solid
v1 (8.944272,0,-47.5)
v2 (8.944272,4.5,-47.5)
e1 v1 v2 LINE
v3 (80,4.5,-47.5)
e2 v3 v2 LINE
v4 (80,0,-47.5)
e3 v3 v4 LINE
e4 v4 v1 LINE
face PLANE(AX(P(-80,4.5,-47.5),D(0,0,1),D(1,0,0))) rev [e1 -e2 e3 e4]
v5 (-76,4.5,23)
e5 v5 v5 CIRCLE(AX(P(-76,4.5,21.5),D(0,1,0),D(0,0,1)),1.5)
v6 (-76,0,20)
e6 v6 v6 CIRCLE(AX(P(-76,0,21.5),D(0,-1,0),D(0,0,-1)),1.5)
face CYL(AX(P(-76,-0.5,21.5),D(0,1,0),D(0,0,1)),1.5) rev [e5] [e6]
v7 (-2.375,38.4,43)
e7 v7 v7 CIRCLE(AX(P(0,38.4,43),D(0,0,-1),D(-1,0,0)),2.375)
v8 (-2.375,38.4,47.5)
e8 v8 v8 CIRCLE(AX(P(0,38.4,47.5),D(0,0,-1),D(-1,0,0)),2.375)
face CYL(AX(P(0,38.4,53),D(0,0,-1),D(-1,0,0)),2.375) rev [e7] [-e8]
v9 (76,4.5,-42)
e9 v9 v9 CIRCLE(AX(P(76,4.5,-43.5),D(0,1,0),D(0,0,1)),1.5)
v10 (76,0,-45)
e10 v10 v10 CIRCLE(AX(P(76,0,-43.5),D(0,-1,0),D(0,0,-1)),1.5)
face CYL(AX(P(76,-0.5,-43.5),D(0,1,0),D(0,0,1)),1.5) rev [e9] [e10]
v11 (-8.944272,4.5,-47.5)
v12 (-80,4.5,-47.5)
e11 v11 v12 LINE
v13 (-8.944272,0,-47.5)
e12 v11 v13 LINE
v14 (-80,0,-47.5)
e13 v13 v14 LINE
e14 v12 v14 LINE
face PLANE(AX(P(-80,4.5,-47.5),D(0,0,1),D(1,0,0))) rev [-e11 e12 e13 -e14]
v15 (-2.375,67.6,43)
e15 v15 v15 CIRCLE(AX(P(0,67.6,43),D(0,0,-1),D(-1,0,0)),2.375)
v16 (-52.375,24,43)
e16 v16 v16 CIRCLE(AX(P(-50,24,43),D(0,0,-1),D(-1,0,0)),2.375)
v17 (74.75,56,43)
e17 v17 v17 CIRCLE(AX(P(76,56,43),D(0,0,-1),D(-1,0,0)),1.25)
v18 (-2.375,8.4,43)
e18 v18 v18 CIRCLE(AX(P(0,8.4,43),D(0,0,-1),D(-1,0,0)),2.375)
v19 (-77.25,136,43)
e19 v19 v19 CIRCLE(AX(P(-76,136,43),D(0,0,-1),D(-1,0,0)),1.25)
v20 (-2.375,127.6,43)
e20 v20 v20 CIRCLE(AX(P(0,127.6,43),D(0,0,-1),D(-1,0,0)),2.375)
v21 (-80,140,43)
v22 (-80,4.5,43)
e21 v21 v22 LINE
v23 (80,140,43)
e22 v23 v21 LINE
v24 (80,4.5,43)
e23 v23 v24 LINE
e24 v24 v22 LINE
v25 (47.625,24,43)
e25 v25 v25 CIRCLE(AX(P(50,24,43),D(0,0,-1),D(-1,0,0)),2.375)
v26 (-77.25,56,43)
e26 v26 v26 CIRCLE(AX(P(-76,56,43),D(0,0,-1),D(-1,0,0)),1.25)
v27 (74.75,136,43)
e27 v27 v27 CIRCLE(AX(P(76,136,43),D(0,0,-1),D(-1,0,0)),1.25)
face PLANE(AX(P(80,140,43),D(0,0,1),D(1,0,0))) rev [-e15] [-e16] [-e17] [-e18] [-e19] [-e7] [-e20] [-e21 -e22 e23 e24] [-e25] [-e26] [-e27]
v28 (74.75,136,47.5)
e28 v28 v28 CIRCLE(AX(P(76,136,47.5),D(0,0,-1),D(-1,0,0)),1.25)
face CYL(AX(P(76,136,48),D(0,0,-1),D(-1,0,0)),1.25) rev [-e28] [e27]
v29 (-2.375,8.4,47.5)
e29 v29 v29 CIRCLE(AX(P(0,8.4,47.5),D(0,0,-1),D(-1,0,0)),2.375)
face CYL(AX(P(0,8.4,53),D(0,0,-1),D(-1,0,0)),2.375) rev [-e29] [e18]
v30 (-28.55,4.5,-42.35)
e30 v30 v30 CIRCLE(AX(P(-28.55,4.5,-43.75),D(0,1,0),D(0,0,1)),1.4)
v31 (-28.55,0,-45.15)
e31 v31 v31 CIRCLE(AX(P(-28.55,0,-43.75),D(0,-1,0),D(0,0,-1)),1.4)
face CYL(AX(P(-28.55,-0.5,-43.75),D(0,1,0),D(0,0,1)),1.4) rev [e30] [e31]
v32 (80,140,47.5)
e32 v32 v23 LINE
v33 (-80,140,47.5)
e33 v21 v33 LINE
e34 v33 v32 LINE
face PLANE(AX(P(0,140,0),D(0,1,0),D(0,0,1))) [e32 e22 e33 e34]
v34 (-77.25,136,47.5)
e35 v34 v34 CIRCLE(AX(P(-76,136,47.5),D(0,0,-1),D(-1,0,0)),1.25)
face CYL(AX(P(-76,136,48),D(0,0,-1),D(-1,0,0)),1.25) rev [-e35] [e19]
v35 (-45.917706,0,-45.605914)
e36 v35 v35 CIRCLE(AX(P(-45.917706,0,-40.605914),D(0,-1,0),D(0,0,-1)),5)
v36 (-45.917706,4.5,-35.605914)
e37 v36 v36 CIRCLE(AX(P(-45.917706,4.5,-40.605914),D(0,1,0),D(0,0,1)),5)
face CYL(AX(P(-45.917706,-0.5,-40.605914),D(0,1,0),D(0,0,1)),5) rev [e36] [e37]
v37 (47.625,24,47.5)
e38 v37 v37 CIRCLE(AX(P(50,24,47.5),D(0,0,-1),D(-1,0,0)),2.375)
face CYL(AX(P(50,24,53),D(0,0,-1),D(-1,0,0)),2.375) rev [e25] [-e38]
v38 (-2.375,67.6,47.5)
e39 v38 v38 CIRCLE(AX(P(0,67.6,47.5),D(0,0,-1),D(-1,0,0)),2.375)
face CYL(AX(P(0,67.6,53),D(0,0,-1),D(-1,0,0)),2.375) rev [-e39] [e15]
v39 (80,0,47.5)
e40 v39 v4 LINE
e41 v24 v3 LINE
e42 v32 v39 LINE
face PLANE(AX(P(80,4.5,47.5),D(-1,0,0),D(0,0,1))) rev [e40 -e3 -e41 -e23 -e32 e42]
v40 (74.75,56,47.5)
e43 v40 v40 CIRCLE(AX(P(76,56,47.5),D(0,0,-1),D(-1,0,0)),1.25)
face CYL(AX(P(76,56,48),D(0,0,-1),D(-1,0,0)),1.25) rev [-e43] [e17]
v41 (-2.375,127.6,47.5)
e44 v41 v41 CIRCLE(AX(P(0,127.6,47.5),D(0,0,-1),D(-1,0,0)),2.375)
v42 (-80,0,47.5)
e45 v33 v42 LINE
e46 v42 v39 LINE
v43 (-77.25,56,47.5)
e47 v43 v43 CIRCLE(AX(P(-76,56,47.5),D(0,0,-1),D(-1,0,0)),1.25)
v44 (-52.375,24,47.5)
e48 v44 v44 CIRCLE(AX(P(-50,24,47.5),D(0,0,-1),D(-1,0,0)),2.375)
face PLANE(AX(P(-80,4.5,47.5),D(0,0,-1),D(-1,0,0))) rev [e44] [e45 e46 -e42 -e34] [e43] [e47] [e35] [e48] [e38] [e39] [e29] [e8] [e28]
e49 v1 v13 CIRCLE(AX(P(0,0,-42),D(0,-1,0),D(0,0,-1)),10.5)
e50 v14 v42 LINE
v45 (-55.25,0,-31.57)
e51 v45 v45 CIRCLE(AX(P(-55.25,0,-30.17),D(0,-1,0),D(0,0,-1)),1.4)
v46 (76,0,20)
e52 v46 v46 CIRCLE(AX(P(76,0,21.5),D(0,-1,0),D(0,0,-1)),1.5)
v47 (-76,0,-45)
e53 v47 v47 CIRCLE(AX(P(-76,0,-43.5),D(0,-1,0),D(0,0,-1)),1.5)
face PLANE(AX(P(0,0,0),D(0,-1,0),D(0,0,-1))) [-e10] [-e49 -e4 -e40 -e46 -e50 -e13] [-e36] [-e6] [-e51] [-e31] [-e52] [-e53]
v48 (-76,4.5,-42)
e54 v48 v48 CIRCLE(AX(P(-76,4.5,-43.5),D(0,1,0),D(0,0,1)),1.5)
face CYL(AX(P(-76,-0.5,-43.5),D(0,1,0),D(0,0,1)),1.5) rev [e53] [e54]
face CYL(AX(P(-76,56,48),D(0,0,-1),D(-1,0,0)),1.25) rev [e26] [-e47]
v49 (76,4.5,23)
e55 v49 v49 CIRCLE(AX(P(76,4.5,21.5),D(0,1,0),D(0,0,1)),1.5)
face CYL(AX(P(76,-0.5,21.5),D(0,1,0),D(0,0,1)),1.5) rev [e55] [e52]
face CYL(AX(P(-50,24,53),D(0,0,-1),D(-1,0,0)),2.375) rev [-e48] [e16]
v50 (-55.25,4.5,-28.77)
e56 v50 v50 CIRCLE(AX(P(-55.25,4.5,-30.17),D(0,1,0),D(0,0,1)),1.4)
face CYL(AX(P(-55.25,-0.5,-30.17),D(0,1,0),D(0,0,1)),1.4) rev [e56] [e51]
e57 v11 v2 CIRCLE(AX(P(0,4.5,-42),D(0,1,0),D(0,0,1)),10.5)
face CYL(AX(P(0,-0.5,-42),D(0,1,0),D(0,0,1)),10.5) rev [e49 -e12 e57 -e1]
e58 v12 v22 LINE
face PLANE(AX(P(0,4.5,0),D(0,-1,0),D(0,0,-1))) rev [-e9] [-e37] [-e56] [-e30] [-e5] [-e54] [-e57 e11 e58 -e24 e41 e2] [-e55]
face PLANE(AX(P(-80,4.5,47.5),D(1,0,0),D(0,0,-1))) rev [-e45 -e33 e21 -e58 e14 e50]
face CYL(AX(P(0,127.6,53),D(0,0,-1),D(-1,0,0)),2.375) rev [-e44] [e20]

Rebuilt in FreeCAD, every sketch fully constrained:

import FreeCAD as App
import Part
import Sketcher
from FreeCAD import Vector


def add_polygon(sketch, points):
    """Adds a closed chain of lines whose ends are joined by coincident constraints."""
    first, n = sketch.GeometryCount, len(points)
    for a, b in zip(points, points[1:] + points[:1]):
        sketch.addGeometry(Part.LineSegment(App.Vector(*a, 0), App.Vector(*b, 0)), False)
    for i in range(n):
        sketch.addConstraint(Sketcher.Constraint("Coincident", first + i, 2, first + (i + 1) % n, 1))

doc = App.newDocument("Part")
body = doc.addObject("PartDesign::Body", "Body")

# Sketch on XZ plane
sketch1 = doc.addObject("Sketcher::SketchObject", "Sketch")
body.addObject(sketch1)
sketch1.AttachmentSupport = (doc.XZ_Plane, [""])
sketch1.MapMode = "FlatFace"
add_polygon(sketch1, [(-80, -48), (-80, 48), (80, 48), (80, -48)])  # lines 0-3
sketch1.addConstraint(Sketcher.Constraint("Vertical", 0))
sketch1.addConstraint(Sketcher.Constraint("Horizontal", 1))
sketch1.addConstraint(Sketcher.Constraint("Vertical", 2))
sketch1.addConstraint(Sketcher.Constraint("Horizontal", 3))
sketch1.addConstraint(Sketcher.Constraint("Symmetric", 0, 2, 2, 2, -1, 1))
sketch1.addConstraint(Sketcher.Constraint("DistanceX", 1, 1, 1, 2, 160.0))
sketch1.addConstraint(Sketcher.Constraint("DistanceY", 0, 1, 0, 2, 95.0))
pad1 = doc.addObject("PartDesign::Pad", "Pad")
body.addObject(pad1)
pad1.Profile = sketch1
pad1.Length = 4.5
pad1.Reversed = True

# Sketch on XZ plane
sketch2 = doc.addObject("Sketcher::SketchObject", "Sketch001")
body.addObject(sketch2)
sketch2.AttachmentSupport = (doc.XZ_Plane, [""])
sketch2.MapMode = "FlatFace"
sketch2.AttachmentOffset = App.Placement(Vector(0, 0, -4.5), App.Rotation())
sketch2.addGeometry(Part.Circle(Vector(76, 21.5, 0), Vector(0, 0, 1), 1.5), False)
sketch2.addGeometry(Part.Circle(Vector(-76, 21.5, 0), Vector(0, 0, 1), 1.5), False)
sketch2.addGeometry(Part.Circle(Vector(-76, -43.5, 0), Vector(0, 0, 1), 1.5), False)
sketch2.addGeometry(Part.Circle(Vector(76, -43.5, 0), Vector(0, 0, 1), 1.5), False)
sketch2.addConstraint(Sketcher.Constraint("Equal", 0, 1))
sketch2.addConstraint(Sketcher.Constraint("Equal", 1, 2))
sketch2.addConstraint(Sketcher.Constraint("Equal", 2, 3))
sketch2.addConstraint(Sketcher.Constraint("Symmetric", 0, 3, 1, 3, -2))
sketch2.addConstraint(Sketcher.Constraint("Symmetric", 2, 3, 3, 3, -2))
sketch2.addConstraint(Sketcher.Constraint("Vertical", 1, 3, 2, 3))
sketch2.addConstraint(Sketcher.Constraint("Diameter", 0, 3.0))
sketch2.addConstraint(Sketcher.Constraint("DistanceX", -1, 1, 0, 3, 76.0))
sketch2.addConstraint(Sketcher.Constraint("DistanceY", 2, 3, 1, 3, 65.0))
sketch2.addConstraint(Sketcher.Constraint("DistanceY", -1, 1, 0, 3, 21.5))
pocket1 = doc.addObject("PartDesign::Pocket", "Pocket")
body.addObject(pocket1)
pocket1.Profile = sketch2
pocket1.Length = 5
pocket1.Reversed = True

# Sketch on XZ plane
sketch3 = doc.addObject("Sketcher::SketchObject", "Sketch002")
body.addObject(sketch3)
sketch3.AttachmentSupport = (doc.XZ_Plane, [""])
sketch3.MapMode = "FlatFace"
sketch3.AttachmentOffset = App.Placement(Vector(0, 0, -4.5), App.Rotation())
add_polygon(sketch3, [(-80, 43), (-80, 47.5), (80, 47.5), (80, 43)])  # lines 0-3
sketch3.addConstraint(Sketcher.Constraint("Vertical", 0))
sketch3.addConstraint(Sketcher.Constraint("Horizontal", 1))
sketch3.addConstraint(Sketcher.Constraint("Vertical", 2))
sketch3.addConstraint(Sketcher.Constraint("Horizontal", 3))
sketch3.addConstraint(Sketcher.Constraint("DistanceX", 1, 1, 1, 2, 160.0))
sketch3.addConstraint(Sketcher.Constraint("DistanceY", 0, 1, 0, 2, 4.5))
sketch3.addConstraint(Sketcher.Constraint("DistanceX", 0, 2, -1, 1, 80.0))
sketch3.addConstraint(Sketcher.Constraint("DistanceY", -1, 1, 2, 2, 43.0))
pad2 = doc.addObject("PartDesign::Pad", "Pad001")
body.addObject(pad2)
pad2.Profile = sketch3
pad2.Length = 135.5
pad2.Reversed = True

# Sketch on XY plane
sketch4 = doc.addObject("Sketcher::SketchObject", "Sketch003")
body.addObject(sketch4)
sketch4.AttachmentSupport = (doc.XY_Plane, [""])
sketch4.MapMode = "FlatFace"
sketch4.AttachmentOffset = App.Placement(Vector(0, 0, 43), App.Rotation())
sketch4.addGeometry(Part.Circle(Vector(-76, 136, 0), Vector(0, 0, 1), 1.2), False)
sketch4.addGeometry(Part.Circle(Vector(76, 136, 0), Vector(0, 0, 1), 1.2), False)
sketch4.addGeometry(Part.Circle(Vector(76, 56, 0), Vector(0, 0, 1), 1.2), False)
sketch4.addGeometry(Part.Circle(Vector(-76, 56, 0), Vector(0, 0, 1), 1.2), False)
sketch4.addConstraint(Sketcher.Constraint("Equal", 0, 1))
sketch4.addConstraint(Sketcher.Constraint("Equal", 1, 2))
sketch4.addConstraint(Sketcher.Constraint("Equal", 2, 3))
sketch4.addConstraint(Sketcher.Constraint("Symmetric", 0, 3, 1, 3, -2))
sketch4.addConstraint(Sketcher.Constraint("Symmetric", 2, 3, 3, 3, -2))
sketch4.addConstraint(Sketcher.Constraint("Vertical", 1, 3, 2, 3))
sketch4.addConstraint(Sketcher.Constraint("Diameter", 0, 2.5))
sketch4.addConstraint(Sketcher.Constraint("DistanceX", 0, 3, -1, 1, 76.0))
sketch4.addConstraint(Sketcher.Constraint("DistanceY", -1, 1, 0, 3, 136.0))
sketch4.addConstraint(Sketcher.Constraint("DistanceY", -1, 1, 2, 3, 56.0))
pocket2 = doc.addObject("PartDesign::Pocket", "Pocket001")
body.addObject(pocket2)
pocket2.Profile = sketch4
pocket2.Length = 5
pocket2.Reversed = True

# Sketch on XZ plane
sketch5 = doc.addObject("Sketcher::SketchObject", "Sketch004")
body.addObject(sketch5)
sketch5.AttachmentSupport = (doc.XZ_Plane, [""])
sketch5.MapMode = "FlatFace"
sketch5.AttachmentOffset = App.Placement(Vector(0, 0, -4.5), App.Rotation())
sketch5.addGeometry(Part.Circle(Vector(0, -42, 0), Vector(0, 0, 1), 10.5), False)
sketch5.addGeometry(Part.Circle(Vector(-45.9, -40.6, 0), Vector(0, 0, 1), 5), False)
sketch5.addGeometry(Part.Circle(Vector(-28.6, -43.8, 0), Vector(0, 0, 1), 1.4), False)
sketch5.addGeometry(Part.Circle(Vector(-55.2, -30.2, 0), Vector(0, 0, 1), 1.4), False)
sketch5.addConstraint(Sketcher.Constraint("Equal", 2, 3))
sketch5.addConstraint(Sketcher.Constraint("PointOnObject", 0, 3, -2))
sketch5.addConstraint(Sketcher.Constraint("Diameter", 0, 21.0))
sketch5.addConstraint(Sketcher.Constraint("Diameter", 1, 10.0))
sketch5.addConstraint(Sketcher.Constraint("Diameter", 2, 2.8))
sketch5.addConstraint(Sketcher.Constraint("DistanceY", 0, 3, -1, 1, 42.0))
sketch5.addConstraint(Sketcher.Constraint("DistanceX", 3, 3, 2, 3, 26.7))
sketch5.addConstraint(Sketcher.Constraint("DistanceX", 2, 3, -1, 1, 28.55))
sketch5.addConstraint(Sketcher.Constraint("DistanceY", 2, 3, -1, 1, 43.75))
sketch5.addConstraint(Sketcher.Constraint("DistanceY", 3, 3, -1, 1, 30.17))
sketch5.addConstraint(Sketcher.Constraint("DistanceX", 1, 3, -1, 1, 45.917706))
sketch5.addConstraint(Sketcher.Constraint("DistanceY", 1, 3, -1, 1, 40.605914))
pocket3 = doc.addObject("PartDesign::Pocket", "Pocket002")
body.addObject(pocket3)
pocket3.Profile = sketch5
pocket3.Length = 5
pocket3.Reversed = True

# Sketch on XY plane
sketch6 = doc.addObject("Sketcher::SketchObject", "Sketch005")
body.addObject(sketch6)
sketch6.AttachmentSupport = (doc.XY_Plane, [""])
sketch6.MapMode = "FlatFace"
sketch6.AttachmentOffset = App.Placement(Vector(0, 0, 43), App.Rotation())
sketch6.addGeometry(Part.Circle(Vector(0, 8.4, 0), Vector(0, 0, 1), 2.4), False)
sketch6.addGeometry(Part.Circle(Vector(0, 38.4, 0), Vector(0, 0, 1), 2.4), False)
sketch6.addGeometry(Part.Circle(Vector(0, 67.6, 0), Vector(0, 0, 1), 2.4), False)
sketch6.addGeometry(Part.Circle(Vector(0, 127.6, 0), Vector(0, 0, 1), 2.4), False)
sketch6.addGeometry(Part.Circle(Vector(50, 24, 0), Vector(0, 0, 1), 2.4), False)
sketch6.addGeometry(Part.Circle(Vector(-50, 24, 0), Vector(0, 0, 1), 2.4), False)
sketch6.addConstraint(Sketcher.Constraint("Equal", 0, 1))
sketch6.addConstraint(Sketcher.Constraint("Equal", 1, 2))
sketch6.addConstraint(Sketcher.Constraint("Equal", 2, 3))
sketch6.addConstraint(Sketcher.Constraint("Equal", 3, 4))
sketch6.addConstraint(Sketcher.Constraint("Equal", 4, 5))
sketch6.addConstraint(Sketcher.Constraint("Symmetric", 4, 3, 5, 3, -2))
sketch6.addConstraint(Sketcher.Constraint("PointOnObject", 0, 3, -2))
sketch6.addConstraint(Sketcher.Constraint("PointOnObject", 1, 3, -2))
sketch6.addConstraint(Sketcher.Constraint("PointOnObject", 2, 3, -2))
sketch6.addConstraint(Sketcher.Constraint("PointOnObject", 3, 3, -2))
sketch6.addConstraint(Sketcher.Constraint("Diameter", 0, 4.75))
sketch6.addConstraint(Sketcher.Constraint("DistanceX", -1, 1, 4, 3, 50.0))
sketch6.addConstraint(Sketcher.Constraint("DistanceY", -1, 1, 4, 3, 24.0))
sketch6.addConstraint(Sketcher.Constraint("DistanceY", 0, 3, 1, 3, 30.0))
sketch6.addConstraint(Sketcher.Constraint("DistanceY", 2, 3, 3, 3, 60.0))
sketch6.addConstraint(Sketcher.Constraint("DistanceY", -1, 1, 0, 3, 8.4))
sketch6.addConstraint(Sketcher.Constraint("DistanceY", -1, 1, 2, 3, 67.6))
pocket4 = doc.addObject("PartDesign::Pocket", "Pocket003")
body.addObject(pocket4)
pocket4.Profile = sketch6
pocket4.Length = 10
pocket4.Reversed = True

doc.recompute()
